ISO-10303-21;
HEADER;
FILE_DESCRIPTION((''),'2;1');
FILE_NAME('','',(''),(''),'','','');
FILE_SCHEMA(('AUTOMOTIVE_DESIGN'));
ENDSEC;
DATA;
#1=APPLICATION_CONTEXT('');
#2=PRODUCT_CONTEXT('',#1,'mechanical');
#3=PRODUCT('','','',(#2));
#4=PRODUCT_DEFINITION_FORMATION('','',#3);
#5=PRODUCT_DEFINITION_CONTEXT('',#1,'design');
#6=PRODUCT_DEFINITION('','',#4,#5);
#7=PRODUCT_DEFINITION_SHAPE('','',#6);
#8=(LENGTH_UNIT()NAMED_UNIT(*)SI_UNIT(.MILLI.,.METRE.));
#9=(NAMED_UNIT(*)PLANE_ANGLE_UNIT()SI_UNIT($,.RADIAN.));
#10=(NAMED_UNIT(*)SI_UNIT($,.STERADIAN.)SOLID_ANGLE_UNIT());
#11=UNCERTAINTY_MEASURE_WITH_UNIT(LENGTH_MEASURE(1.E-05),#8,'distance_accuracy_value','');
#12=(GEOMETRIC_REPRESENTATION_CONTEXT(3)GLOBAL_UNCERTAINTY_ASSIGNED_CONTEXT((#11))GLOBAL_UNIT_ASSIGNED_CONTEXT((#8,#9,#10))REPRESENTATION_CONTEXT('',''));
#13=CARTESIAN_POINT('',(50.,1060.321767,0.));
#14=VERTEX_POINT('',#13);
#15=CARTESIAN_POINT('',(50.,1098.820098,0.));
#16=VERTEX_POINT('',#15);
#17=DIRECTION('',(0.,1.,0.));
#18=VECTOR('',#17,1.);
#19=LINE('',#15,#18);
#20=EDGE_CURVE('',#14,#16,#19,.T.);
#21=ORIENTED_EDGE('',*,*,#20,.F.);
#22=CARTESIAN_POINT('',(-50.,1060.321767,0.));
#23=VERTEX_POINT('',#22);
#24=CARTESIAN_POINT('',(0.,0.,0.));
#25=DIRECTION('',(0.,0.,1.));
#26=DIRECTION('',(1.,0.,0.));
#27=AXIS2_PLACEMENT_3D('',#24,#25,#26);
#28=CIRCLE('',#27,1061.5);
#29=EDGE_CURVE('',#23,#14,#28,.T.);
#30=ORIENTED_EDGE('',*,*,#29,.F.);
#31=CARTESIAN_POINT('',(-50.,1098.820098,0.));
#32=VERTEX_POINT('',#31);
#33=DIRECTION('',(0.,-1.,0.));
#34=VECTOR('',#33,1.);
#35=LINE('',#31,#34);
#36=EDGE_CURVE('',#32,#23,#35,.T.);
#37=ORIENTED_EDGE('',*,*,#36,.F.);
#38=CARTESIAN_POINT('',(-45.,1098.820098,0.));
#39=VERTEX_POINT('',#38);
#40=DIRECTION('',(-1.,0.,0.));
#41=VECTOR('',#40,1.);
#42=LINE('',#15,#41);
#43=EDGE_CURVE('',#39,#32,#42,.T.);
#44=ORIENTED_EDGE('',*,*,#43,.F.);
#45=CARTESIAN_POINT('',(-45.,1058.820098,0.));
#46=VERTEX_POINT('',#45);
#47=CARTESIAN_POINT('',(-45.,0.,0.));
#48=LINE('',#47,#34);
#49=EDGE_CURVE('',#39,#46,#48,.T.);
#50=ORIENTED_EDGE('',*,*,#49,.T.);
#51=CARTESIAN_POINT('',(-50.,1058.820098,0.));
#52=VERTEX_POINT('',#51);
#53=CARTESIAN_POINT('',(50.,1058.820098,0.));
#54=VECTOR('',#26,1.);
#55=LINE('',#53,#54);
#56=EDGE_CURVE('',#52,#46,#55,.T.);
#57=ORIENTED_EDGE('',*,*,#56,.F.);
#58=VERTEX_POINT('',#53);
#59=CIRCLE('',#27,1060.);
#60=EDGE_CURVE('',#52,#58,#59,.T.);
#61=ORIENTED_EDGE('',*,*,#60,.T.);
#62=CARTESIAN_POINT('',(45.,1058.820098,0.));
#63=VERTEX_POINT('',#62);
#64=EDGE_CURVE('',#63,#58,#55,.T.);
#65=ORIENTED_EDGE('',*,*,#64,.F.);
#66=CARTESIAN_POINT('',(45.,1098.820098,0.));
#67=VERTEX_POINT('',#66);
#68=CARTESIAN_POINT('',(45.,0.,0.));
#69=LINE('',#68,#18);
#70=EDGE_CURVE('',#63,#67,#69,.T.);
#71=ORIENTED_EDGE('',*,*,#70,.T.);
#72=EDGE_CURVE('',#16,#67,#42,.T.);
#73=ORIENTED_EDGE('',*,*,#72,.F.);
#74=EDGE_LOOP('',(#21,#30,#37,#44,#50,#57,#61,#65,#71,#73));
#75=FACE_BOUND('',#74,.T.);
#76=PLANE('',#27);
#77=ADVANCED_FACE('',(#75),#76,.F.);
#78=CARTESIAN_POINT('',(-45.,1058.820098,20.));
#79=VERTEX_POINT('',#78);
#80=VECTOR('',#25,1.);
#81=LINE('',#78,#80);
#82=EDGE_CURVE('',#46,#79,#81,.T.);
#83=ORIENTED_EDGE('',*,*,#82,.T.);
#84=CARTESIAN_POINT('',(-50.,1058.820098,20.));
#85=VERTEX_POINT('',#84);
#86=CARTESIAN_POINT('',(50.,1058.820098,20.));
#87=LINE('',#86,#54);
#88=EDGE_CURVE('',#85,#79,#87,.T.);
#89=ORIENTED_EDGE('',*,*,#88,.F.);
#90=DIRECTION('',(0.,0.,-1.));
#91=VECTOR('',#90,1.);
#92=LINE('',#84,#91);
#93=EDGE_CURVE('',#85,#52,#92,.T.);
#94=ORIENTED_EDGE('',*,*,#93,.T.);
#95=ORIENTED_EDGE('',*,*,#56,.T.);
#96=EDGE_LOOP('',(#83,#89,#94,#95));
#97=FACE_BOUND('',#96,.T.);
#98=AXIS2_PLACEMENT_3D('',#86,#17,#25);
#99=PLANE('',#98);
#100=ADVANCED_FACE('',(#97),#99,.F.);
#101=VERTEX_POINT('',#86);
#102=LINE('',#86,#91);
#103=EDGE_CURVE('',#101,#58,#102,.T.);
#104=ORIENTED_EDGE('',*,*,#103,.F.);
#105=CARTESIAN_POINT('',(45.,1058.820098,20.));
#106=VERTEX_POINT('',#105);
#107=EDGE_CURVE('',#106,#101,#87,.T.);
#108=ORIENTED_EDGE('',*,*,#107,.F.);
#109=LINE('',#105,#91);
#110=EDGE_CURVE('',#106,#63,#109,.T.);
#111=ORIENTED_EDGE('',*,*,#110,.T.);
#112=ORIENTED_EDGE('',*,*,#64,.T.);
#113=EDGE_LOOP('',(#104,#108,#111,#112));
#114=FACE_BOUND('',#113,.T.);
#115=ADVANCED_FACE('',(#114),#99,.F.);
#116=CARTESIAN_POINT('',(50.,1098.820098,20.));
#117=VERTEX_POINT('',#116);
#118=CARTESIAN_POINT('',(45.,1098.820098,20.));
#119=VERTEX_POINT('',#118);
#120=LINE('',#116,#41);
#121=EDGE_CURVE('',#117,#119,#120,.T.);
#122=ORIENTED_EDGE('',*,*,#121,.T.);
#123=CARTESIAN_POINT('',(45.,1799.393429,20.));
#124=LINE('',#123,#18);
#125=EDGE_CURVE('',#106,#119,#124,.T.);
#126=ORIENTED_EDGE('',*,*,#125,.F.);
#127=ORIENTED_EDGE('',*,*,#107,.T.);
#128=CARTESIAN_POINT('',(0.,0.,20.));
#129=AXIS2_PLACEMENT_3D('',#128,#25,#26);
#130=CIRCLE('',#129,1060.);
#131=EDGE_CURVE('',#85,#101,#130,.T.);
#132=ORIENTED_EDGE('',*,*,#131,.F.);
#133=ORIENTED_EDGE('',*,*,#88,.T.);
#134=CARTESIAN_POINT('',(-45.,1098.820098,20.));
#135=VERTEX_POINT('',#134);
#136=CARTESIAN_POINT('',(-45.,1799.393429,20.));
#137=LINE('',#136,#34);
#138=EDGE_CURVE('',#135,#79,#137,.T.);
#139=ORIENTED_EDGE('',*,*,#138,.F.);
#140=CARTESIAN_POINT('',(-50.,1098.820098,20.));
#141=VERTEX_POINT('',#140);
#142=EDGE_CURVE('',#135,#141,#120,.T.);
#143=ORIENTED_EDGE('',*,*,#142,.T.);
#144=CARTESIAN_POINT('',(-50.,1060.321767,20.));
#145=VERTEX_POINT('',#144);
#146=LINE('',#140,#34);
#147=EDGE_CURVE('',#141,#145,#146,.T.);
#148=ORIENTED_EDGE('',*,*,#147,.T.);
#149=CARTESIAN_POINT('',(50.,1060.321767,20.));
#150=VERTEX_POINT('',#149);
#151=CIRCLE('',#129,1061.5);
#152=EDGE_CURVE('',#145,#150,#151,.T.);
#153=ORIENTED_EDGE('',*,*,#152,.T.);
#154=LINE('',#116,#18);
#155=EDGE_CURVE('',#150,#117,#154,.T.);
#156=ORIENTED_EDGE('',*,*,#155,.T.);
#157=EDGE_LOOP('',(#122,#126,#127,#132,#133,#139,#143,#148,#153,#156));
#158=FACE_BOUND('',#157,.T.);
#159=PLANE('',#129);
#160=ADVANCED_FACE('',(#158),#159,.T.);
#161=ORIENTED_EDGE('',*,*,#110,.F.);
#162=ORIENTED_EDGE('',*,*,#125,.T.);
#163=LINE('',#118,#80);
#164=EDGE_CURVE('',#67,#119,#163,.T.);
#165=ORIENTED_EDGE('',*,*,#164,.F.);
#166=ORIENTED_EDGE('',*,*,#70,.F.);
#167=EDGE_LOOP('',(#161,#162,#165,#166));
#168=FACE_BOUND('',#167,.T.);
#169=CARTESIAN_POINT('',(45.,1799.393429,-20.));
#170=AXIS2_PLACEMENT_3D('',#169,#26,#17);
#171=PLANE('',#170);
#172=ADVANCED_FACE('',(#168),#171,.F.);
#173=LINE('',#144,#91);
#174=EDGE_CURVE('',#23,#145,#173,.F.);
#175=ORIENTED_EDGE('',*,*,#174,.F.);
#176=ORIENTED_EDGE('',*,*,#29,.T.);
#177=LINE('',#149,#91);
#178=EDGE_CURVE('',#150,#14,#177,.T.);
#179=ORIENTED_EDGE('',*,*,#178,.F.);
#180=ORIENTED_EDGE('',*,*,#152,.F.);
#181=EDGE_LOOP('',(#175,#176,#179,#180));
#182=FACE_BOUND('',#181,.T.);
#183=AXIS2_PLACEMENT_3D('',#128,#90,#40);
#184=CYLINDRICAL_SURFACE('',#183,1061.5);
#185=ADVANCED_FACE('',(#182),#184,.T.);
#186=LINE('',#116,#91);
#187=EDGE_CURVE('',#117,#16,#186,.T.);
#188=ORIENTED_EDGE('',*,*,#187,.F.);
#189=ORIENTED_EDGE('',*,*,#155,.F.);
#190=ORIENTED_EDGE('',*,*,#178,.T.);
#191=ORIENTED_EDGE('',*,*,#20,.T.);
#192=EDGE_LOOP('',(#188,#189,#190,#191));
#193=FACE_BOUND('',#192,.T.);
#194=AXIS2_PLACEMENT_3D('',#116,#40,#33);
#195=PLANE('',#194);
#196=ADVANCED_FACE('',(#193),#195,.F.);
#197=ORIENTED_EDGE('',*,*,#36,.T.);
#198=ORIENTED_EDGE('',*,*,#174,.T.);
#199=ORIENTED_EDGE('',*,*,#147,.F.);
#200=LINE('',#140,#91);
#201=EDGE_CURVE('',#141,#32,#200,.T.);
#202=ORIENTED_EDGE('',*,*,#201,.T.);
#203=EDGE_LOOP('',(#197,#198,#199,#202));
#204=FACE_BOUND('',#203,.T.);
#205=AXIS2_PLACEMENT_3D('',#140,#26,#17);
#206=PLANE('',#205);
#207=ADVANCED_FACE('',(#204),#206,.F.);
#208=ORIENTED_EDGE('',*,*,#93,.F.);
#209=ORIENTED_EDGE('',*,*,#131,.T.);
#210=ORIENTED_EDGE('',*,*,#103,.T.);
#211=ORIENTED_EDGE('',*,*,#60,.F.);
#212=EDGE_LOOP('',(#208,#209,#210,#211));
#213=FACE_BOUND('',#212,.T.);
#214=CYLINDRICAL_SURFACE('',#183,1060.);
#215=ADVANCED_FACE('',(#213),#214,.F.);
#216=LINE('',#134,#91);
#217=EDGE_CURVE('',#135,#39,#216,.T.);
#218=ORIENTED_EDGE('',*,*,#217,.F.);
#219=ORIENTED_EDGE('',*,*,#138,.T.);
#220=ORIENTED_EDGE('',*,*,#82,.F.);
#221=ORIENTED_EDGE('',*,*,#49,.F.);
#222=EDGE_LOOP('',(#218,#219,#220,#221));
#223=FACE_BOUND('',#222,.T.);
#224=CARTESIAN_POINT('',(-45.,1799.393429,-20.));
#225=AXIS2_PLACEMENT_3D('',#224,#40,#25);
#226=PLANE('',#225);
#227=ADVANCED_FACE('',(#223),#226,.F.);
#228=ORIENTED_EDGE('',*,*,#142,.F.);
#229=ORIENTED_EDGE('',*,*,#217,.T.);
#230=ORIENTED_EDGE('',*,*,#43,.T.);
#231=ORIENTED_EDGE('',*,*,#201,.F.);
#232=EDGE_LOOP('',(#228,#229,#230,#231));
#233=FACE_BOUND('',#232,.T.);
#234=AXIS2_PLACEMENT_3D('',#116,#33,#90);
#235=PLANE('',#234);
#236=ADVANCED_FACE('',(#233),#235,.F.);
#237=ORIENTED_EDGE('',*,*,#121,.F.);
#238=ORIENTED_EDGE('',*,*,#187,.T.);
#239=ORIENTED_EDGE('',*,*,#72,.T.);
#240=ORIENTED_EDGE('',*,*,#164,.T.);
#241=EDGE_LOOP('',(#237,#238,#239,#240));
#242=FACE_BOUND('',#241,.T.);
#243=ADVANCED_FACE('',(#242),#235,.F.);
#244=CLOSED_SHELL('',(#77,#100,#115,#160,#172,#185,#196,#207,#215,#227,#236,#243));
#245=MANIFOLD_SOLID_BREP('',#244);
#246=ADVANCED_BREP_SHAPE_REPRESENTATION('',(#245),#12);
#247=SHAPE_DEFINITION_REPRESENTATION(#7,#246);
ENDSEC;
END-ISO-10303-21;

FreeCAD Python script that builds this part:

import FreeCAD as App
import Part
import Sketcher

V = App.Vector

doc = App.newDocument("Part")
params = doc.addObject("Spreadsheet::Sheet", "Params")
for row, (alias, value) in enumerate([
    ("sketch1_diameter", "2123 mm"),
    ("sketch1_diameter2", "2120 mm"),
    ("pad1_length", "20 mm"),
    ("sketch2_width", "100 mm"),
    ("sketch2_height", "40 mm"),
    ("pad2_length", "20 mm"),
    ("sketch3_width", "90 mm"),
    ("pocket1_length", "40 mm"),
], start=1):
    params.set(f"A{row}", alias)
    params.set(f"B{row}", "=" + value)
    params.setAlias(f"B{row}", alias)

body = doc.addObject("PartDesign::Body", "Body")

# Sketch on XY plane
sketch1 = doc.addObject("Sketcher::SketchObject", "Sketch")
body.addObject(sketch1)
sketch1.AttachmentSupport = (doc.XY_Plane, [""])
sketch1.MapMode = "FlatFace"
sketch1.addGeometry(Part.Circle(V(0, 0, 0), V(0, 0, 1), 1061.5), False)
sketch1.addGeometry(Part.Circle(V(0, 0, 0), V(0, 0, 1), 1060), False)
sketch1.addConstraint(Sketcher.Constraint("Coincident", 0, 3, -1, 1))
sketch1.addConstraint(Sketcher.Constraint("Coincident", 1, 3, -1, 1))
sketch1.addConstraint(Sketcher.Constraint("Diameter", 0, 2123.0))
sketch1.addConstraint(Sketcher.Constraint("Diameter", 1, 2120.0))
sketch1.setExpression("Constraints[2]", "Params.sketch1_diameter")
sketch1.setExpression("Constraints[3]", "Params.sketch1_diameter2")
pad1 = doc.addObject("PartDesign::Pad", "Pad")
body.addObject(pad1)
pad1.Profile = sketch1
pad1.setExpression("Length", "Params.pad1_length")

# Sketch on XY plane
sketch2 = doc.addObject("Sketcher::SketchObject", "Sketch001")
body.addObject(sketch2)
sketch2.AttachmentSupport = (doc.XY_Plane, [""])
sketch2.MapMode = "FlatFace"
sketch2.addGeometry(Part.LineSegment(V(-50, 1098.820098, 0), V(-50, 1058.820098, 0)), False)
sketch2.addGeometry(Part.LineSegment(V(-50, 1058.820098, 0), V(50, 1058.820098, 0)), False)
sketch2.addGeometry(Part.LineSegment(V(50, 1058.820098, 0), V(50, 1098.820098, 0)), False)
sketch2.addGeometry(Part.LineSegment(V(50, 1098.820098, 0), V(-50, 1098.820098, 0)), False)
sketch2.addConstraint(Sketcher.Constraint("Coincident", 0, 2, 1, 1))
sketch2.addConstraint(Sketcher.Constraint("Coincident", 1, 2, 2, 1))
sketch2.addConstraint(Sketcher.Constraint("Coincident", 2, 2, 3, 1))
sketch2.addConstraint(Sketcher.Constraint("Coincident", 3, 2, 0, 1))
sketch2.addConstraint(Sketcher.Constraint("Vertical", 0))
sketch2.addConstraint(Sketcher.Constraint("Horizontal", 1))
sketch2.addConstraint(Sketcher.Constraint("Vertical", 2))
sketch2.addConstraint(Sketcher.Constraint("Horizontal", 3))
sketch2.addConstraint(Sketcher.Constraint("DistanceX", 1, 1, 1, 2, 100.0))
sketch2.addConstraint(Sketcher.Constraint("DistanceY", 0, 2, 0, 1, 40.0))
sketch2.addConstraint(Sketcher.Constraint("DistanceX", 0, 2, -1, 1, 50.0))
sketch2.addConstraint(Sketcher.Constraint("DistanceY", -1, 1, 0, 2, 1058.820098))
sketch2.setExpression("Constraints[8]", "Params.sketch2_width")
sketch2.setExpression("Constraints[9]", "Params.sketch2_height")
pad2 = doc.addObject("PartDesign::Pad", "Pad001")
body.addObject(pad2)
pad2.Profile = sketch2
pad2.setExpression("Length", "Params.pad2_length")

# Sketch on XY plane
sketch3 = doc.addObject("Sketcher::SketchObject", "Sketch002")
body.addObject(sketch3)
sketch3.AttachmentSupport = (doc.XY_Plane, [""])
sketch3.MapMode = "FlatFace"
sketch3.AttachmentOffset = App.Placement(V(0, 0, 20), App.Rotation())
sketch3.addGeometry(Part.LineSegment(V(-45, 1799.393429, 0), V(-45, 942.467359, 0)), False)
sketch3.addGeometry(Part.LineSegment(V(-45, 942.467359, 0), V(45, 942.467359, 0)), False)
sketch3.addGeometry(Part.LineSegment(V(45, 942.467359, 0), V(45, 1799.393429, 0)), False)
sketch3.addGeometry(Part.LineSegment(V(45, 1799.393429, 0), V(-45, 1799.393429, 0)), False)
sketch3.addConstraint(Sketcher.Constraint("Coincident", 0, 2, 1, 1))
sketch3.addConstraint(Sketcher.Constraint("Coincident", 1, 2, 2, 1))
sketch3.addConstraint(Sketcher.Constraint("Coincident", 2, 2, 3, 1))
sketch3.addConstraint(Sketcher.Constraint("Coincident", 3, 2, 0, 1))
sketch3.addConstraint(Sketcher.Constraint("Vertical", 0))
sketch3.addConstraint(Sketcher.Constraint("Horizontal", 1))
sketch3.addConstraint(Sketcher.Constraint("Vertical", 2))
sketch3.addConstraint(Sketcher.Constraint("Horizontal", 3))
sketch3.addConstraint(Sketcher.Constraint("DistanceX", 1, 1, 1, 2, 90.0))
sketch3.addConstraint(Sketcher.Constraint("DistanceX", 0, 2, -1, 1, 45.0))
sketch3.addConstraint(Sketcher.Constraint("DistanceY", 0, 2, 0, 1, 856.92607))
sketch3.addConstraint(Sketcher.Constraint("DistanceY", -1, 1, 0, 2, 942.467359))
sketch3.setExpression("Constraints[8]", "Params.sketch3_width")
pocket1 = doc.addObject("PartDesign::Pocket", "Pocket")
body.addObject(pocket1)
pocket1.Profile = sketch3
pocket1.setExpression("Length", "Params.pocket1_length")

doc.recompute()
